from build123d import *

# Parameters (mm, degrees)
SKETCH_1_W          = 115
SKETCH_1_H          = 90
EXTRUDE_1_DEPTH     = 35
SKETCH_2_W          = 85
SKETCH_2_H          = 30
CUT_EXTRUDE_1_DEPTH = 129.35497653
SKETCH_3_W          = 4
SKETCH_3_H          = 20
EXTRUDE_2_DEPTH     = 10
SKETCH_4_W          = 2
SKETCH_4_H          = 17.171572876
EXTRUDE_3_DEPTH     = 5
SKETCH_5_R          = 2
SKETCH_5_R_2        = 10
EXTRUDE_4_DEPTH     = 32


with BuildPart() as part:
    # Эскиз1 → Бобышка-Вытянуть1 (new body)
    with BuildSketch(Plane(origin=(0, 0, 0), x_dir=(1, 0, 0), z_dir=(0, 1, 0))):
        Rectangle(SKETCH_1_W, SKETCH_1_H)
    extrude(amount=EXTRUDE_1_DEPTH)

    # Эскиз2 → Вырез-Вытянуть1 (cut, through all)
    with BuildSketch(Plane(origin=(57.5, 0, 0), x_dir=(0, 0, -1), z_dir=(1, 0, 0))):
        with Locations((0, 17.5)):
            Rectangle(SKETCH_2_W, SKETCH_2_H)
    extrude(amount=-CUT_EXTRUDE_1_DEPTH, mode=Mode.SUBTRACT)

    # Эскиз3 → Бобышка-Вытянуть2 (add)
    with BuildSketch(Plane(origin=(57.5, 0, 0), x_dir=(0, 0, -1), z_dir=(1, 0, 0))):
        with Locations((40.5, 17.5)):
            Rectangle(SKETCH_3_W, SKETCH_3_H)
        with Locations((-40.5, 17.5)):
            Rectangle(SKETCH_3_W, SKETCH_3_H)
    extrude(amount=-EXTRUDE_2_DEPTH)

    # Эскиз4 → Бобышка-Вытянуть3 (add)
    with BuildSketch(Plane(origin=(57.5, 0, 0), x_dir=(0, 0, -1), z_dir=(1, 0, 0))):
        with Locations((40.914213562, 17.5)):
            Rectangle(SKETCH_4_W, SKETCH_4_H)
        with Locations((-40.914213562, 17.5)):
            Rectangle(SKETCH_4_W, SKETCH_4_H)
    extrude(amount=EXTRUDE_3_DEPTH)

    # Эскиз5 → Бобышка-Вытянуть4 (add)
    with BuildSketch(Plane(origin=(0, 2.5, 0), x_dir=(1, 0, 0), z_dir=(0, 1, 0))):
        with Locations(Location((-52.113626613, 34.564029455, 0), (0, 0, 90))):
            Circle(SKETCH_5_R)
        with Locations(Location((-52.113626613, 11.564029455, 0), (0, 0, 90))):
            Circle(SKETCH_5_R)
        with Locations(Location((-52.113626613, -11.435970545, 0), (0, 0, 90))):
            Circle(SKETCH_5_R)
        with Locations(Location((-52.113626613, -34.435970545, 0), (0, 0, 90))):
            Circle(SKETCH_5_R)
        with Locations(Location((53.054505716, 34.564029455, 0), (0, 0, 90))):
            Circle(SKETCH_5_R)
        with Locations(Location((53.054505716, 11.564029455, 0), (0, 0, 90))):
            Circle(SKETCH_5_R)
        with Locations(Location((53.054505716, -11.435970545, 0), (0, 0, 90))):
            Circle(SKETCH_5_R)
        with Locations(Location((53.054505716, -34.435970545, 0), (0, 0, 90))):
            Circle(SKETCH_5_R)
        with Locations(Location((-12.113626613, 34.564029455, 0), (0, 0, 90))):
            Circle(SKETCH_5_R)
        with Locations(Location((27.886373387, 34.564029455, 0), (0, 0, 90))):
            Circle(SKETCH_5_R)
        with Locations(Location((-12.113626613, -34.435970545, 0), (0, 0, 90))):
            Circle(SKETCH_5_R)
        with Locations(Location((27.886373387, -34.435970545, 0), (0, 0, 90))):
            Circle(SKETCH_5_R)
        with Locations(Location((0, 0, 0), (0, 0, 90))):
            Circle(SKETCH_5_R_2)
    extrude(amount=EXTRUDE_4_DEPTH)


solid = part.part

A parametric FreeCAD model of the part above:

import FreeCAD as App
import Part
import Sketcher
from FreeCAD import Vector

doc = App.newDocument("Part")
body = doc.addObject("PartDesign::Body", "Body")

# Sketch on XZ plane
sketch1 = body.newObject("Sketcher::SketchObject", "Sketch")
sketch1.AttachmentSupport = (doc.getObject("XZ_Plane"), [""])
sketch1.MapMode = "FlatFace"
sketch1.addGeometry([
    Part.LineSegment(Vector(-58, -45, 0), Vector(-58, 45, 0)),
    Part.LineSegment(Vector(-58, 45, 0), Vector(58, 45, 0)),
    Part.LineSegment(Vector(58, 45, 0), Vector(58, -45, 0)),
    Part.LineSegment(Vector(58, -45, 0), Vector(-58, -45, 0)),
], False)
sketch1.addConstraint([
    Sketcher.Constraint("Coincident", 0, 2, 1, 1),
    Sketcher.Constraint("Coincident", 1, 2, 2, 1),
    Sketcher.Constraint("Coincident", 2, 2, 3, 1),
    Sketcher.Constraint("Coincident", 3, 2, 0, 1),
    Sketcher.Constraint("Vertical", 0),
    Sketcher.Constraint("Horizontal", 1),
    Sketcher.Constraint("Vertical", 2),
    Sketcher.Constraint("Horizontal", 3),
    Sketcher.Constraint("Symmetric", 0, 2, 2, 2, -1, 1),
    Sketcher.Constraint("DistanceX", 1, 1, 1, 2, 115.0),
    Sketcher.Constraint("DistanceY", 0, 1, 0, 2, 90.0),
])
pad1 = body.newObject("PartDesign::Pad", "Pad")
pad1.Profile = sketch1
pad1.Length = 35
pad1.Reversed = True

# Sketch on YZ plane
sketch2 = body.newObject("Sketcher::SketchObject", "Sketch001")
sketch2.AttachmentSupport = (doc.getObject("YZ_Plane"), [""])
sketch2.MapMode = "FlatFace"
sketch2.AttachmentOffset = App.Placement(Vector(0, 0, 57.5), App.Rotation())
sketch2.addGeometry([
    Part.LineSegment(Vector(32, 42, 0), Vector(2, 42, 0)),
    Part.LineSegment(Vector(2, 42, 0), Vector(2, -42, 0)),
    Part.LineSegment(Vector(2, -42, 0), Vector(32, -42, 0)),
    Part.LineSegment(Vector(32, -42, 0), Vector(32, 42, 0)),
], False)
sketch2.addConstraint([
    Sketcher.Constraint("Coincident", 0, 2, 1, 1),
    Sketcher.Constraint("Coincident", 1, 2, 2, 1),
    Sketcher.Constraint("Coincident", 2, 2, 3, 1),
    Sketcher.Constraint("Coincident", 3, 2, 0, 1),
    Sketcher.Constraint("Horizontal", 0),
    Sketcher.Constraint("Vertical", 1),
    Sketcher.Constraint("Horizontal", 2),
    Sketcher.Constraint("Vertical", 3),
    Sketcher.Constraint("DistanceX", 0, 2, 0, 1, 30.0),
    Sketcher.Constraint("DistanceY", 1, 2, 1, 1, 85.0),
    Sketcher.Constraint("DistanceX", -1, 1, 0, 2, 2.5),
    Sketcher.Constraint("DistanceY", -1, 1, 0, 2, 42.5),
])
pocket1 = body.newObject("PartDesign::Pocket", "Pocket")
pocket1.Profile = sketch2
pocket1.Type = "ThroughAll"

# Sketch on YZ plane
sketch3 = body.newObject("Sketcher::SketchObject", "Sketch002")
sketch3.AttachmentSupport = (doc.getObject("YZ_Plane"), [""])
sketch3.MapMode = "FlatFace"
sketch3.AttachmentOffset = App.Placement(Vector(0, 0, 57.5), App.Rotation())
sketch3.addGeometry([
    Part.LineSegment(Vector(27.5, -38.5, 0), Vector(7.5, -38.5, 0)),  # 0
    Part.LineSegment(Vector(7.5, -38.5, 0), Vector(7.5, -42.5, 0)),  # 1
    Part.LineSegment(Vector(7.5, -42.5, 0), Vector(27.5, -42.5, 0)),  # 2
    Part.LineSegment(Vector(27.5, -42.5, 0), Vector(27.5, -38.5, 0)),  # 3
    Part.LineSegment(Vector(27.5, 42.5, 0), Vector(7.5, 42.5, 0)),  # 4
    Part.LineSegment(Vector(7.5, 42.5, 0), Vector(7.5, 38.5, 0)),  # 5
    Part.LineSegment(Vector(7.5, 38.5, 0), Vector(27.5, 38.5, 0)),  # 6
    Part.LineSegment(Vector(27.5, 38.5, 0), Vector(27.5, 42.5, 0)),  # 7
], False)
sketch3.addConstraint([
    Sketcher.Constraint("Coincident", 0, 2, 1, 1),
    Sketcher.Constraint("Coincident", 1, 2, 2, 1),
    Sketcher.Constraint("Coincident", 2, 2, 3, 1),
    Sketcher.Constraint("Coincident", 3, 2, 0, 1),
    Sketcher.Constraint("Coincident", 4, 2, 5, 1),
    Sketcher.Constraint("Coincident", 5, 2, 6, 1),
    Sketcher.Constraint("Coincident", 6, 2, 7, 1),
    Sketcher.Constraint("Coincident", 7, 2, 4, 1),
    Sketcher.Constraint("Horizontal", 0),
    Sketcher.Constraint("Vertical", 1),
    Sketcher.Constraint("Horizontal", 2),
    Sketcher.Constraint("Vertical", 3),
    Sketcher.Constraint("Horizontal", 4),
    Sketcher.Constraint("Vertical", 5),
    Sketcher.Constraint("Horizontal", 6),
    Sketcher.Constraint("Vertical", 7),
    Sketcher.Constraint("Symmetric", 1, 2, 4, 2, -1),
    Sketcher.Constraint("Symmetric", 3, 2, 6, 2, -1),
    Sketcher.Constraint("DistanceX", 0, 2, 0, 1, 20.0),
    Sketcher.Constraint("DistanceY", 1, 2, 1, 1, 4.0),
    Sketcher.Constraint("DistanceY", 0, 2, 4, 2, 81.0),
    Sketcher.Constraint("DistanceX", -1, 1, 0, 2, 7.5),
])
pad2 = body.newObject("PartDesign::Pad", "Pad001")
pad2.Profile = sketch3
pad2.Length = 10
pad2.Reversed = True

# Sketch on YZ plane
sketch4 = body.newObject("Sketcher::SketchObject", "Sketch003")
sketch4.AttachmentSupport = (doc.getObject("YZ_Plane"), [""])
sketch4.MapMode = "FlatFace"
sketch4.AttachmentOffset = App.Placement(Vector(0, 0, 57.5), App.Rotation())
sketch4.addGeometry([
    Part.LineSegment(Vector(26.1, -39.9, 0), Vector(8.9, -39.9, 0)),  # 0
    Part.LineSegment(Vector(8.9, -39.9, 0), Vector(8.9, -41.9, 0)),  # 1
    Part.LineSegment(Vector(8.9, -41.9, 0), Vector(26.1, -41.9, 0)),  # 2
    Part.LineSegment(Vector(26.1, -41.9, 0), Vector(26.1, -39.9, 0)),  # 3
    Part.LineSegment(Vector(26.1, 41.9, 0), Vector(8.9, 41.9, 0)),  # 4
    Part.LineSegment(Vector(8.9, 41.9, 0), Vector(8.9, 39.9, 0)),  # 5
    Part.LineSegment(Vector(8.9, 39.9, 0), Vector(26.1, 39.9, 0)),  # 6
    Part.LineSegment(Vector(26.1, 39.9, 0), Vector(26.1, 41.9, 0)),  # 7
], False)
sketch4.addConstraint([
    Sketcher.Constraint("Coincident", 0, 2, 1, 1),
    Sketcher.Constraint("Coincident", 1, 2, 2, 1),
    Sketcher.Constraint("Coincident", 2, 2, 3, 1),
    Sketcher.Constraint("Coincident", 3, 2, 0, 1),
    Sketcher.Constraint("Coincident", 4, 2, 5, 1),
    Sketcher.Constraint("Coincident", 5, 2, 6, 1),
    Sketcher.Constraint("Coincident", 6, 2, 7, 1),
    Sketcher.Constraint("Coincident", 7, 2, 4, 1),
    Sketcher.Constraint("Horizontal", 0),
    Sketcher.Constraint("Vertical", 1),
    Sketcher.Constraint("Horizontal", 2),
    Sketcher.Constraint("Vertical", 3),
    Sketcher.Constraint("Horizontal", 4),
    Sketcher.Constraint("Vertical", 5),
    Sketcher.Constraint("Horizontal", 6),
    Sketcher.Constraint("Vertical", 7),
    Sketcher.Constraint("Symmetric", 1, 2, 4, 2, -1),
    Sketcher.Constraint("Symmetric", 3, 2, 6, 2, -1),
    Sketcher.Constraint("DistanceY", 1, 2, 1, 1, 2.0),
    Sketcher.Constraint("DistanceX", 0, 2, 0, 1, 17.171573),
    Sketcher.Constraint("DistanceX", -1, 1, 0, 2, 8.914214),
    Sketcher.Constraint("DistanceY", 0, 2, -1, 1, 39.914214),
])
pad3 = body.newObject("PartDesign::Pad", "Pad002")
pad3.Profile = sketch4
pad3.Length = 5

# Sketch on XZ plane
sketch5 = body.newObject("Sketcher::SketchObject", "Sketch004")
sketch5.AttachmentSupport = (doc.getObject("XZ_Plane"), [""])
sketch5.MapMode = "FlatFace"
sketch5.AttachmentOffset = App.Placement(Vector(0, 0, -2.5), App.Rotation())
sketch5.addGeometry([
    Part.Circle(Vector(-52.1, -34.6, 0), Vector(0, 0, 1), 2),  # 0
    Part.Circle(Vector(-52.1, -11.6, 0), Vector(0, 0, 1), 2),  # 1
    Part.Circle(Vector(-52.1, 11.4, 0), Vector(0, 0, 1), 2),  # 2
    Part.Circle(Vector(-52.1, 34.4, 0), Vector(0, 0, 1), 2),  # 3
    Part.Circle(Vector(53.1, -34.6, 0), Vector(0, 0, 1), 2),  # 4
    Part.Circle(Vector(53.1, -11.6, 0), Vector(0, 0, 1), 2),  # 5
    Part.Circle(Vector(53.1, 11.4, 0), Vector(0, 0, 1), 2),  # 6
    Part.Circle(Vector(53.1, 34.4, 0), Vector(0, 0, 1), 2),  # 7
    Part.Circle(Vector(-12.1, -34.6, 0), Vector(0, 0, 1), 2),  # 8
    Part.Circle(Vector(27.9, -34.6, 0), Vector(0, 0, 1), 2),  # 9
    Part.Circle(Vector(-12.1, 34.4, 0), Vector(0, 0, 1), 2),  # 10
    Part.Circle(Vector(27.9, 34.4, 0), Vector(0, 0, 1), 2),  # 11
    Part.Circle(Vector(0, 0, 0), Vector(0, 0, 1), 10),  # 12
], False)
sketch5.addConstraint([
    Sketcher.Constraint("Coincident", 12, 3, -1, 1),
    Sketcher.Constraint("Equal", 0, 1),
    Sketcher.Constraint("Equal", 1, 2),
    Sketcher.Constraint("Equal", 2, 3),
    Sketcher.Constraint("Equal", 3, 4),
    Sketcher.Constraint("Equal", 4, 5),
    Sketcher.Constraint("Equal", 5, 6),
    Sketcher.Constraint("Equal", 6, 7),
    Sketcher.Constraint("Equal", 7, 8),
    Sketcher.Constraint("Equal", 8, 9),
    Sketcher.Constraint("Equal", 9, 10),
    Sketcher.Constraint("Equal", 10, 11),
    Sketcher.Constraint("Horizontal", 0, 3, 4, 3),
    Sketcher.Constraint("Horizontal", 1, 3, 5, 3),
    Sketcher.Constraint("Horizontal", 2, 3, 6, 3),
    Sketcher.Constraint("Horizontal", 3, 3, 7, 3),
    Sketcher.Constraint("Horizontal", 4, 3, 8, 3),
    Sketcher.Constraint("Horizontal", 8, 3, 9, 3),
    Sketcher.Constraint("Horizontal", 7, 3, 10, 3),
    Sketcher.Constraint("Horizontal", 10, 3, 11, 3),
    Sketcher.Constraint("Vertical", 0, 3, 1, 3),
    Sketcher.Constraint("Vertical", 1, 3, 2, 3),
    Sketcher.Constraint("Vertical", 2, 3, 3, 3),
    Sketcher.Constraint("Vertical", 4, 3, 5, 3),
    Sketcher.Constraint("Vertical", 5, 3, 6, 3),
    Sketcher.Constraint("Vertical", 6, 3, 7, 3),
    Sketcher.Constraint("Vertical", 8, 3, 10, 3),
    Sketcher.Constraint("Vertical", 9, 3, 11, 3),
    Sketcher.Constraint("Diameter", 0, 4.0),
    Sketcher.Constraint("Diameter", 12, 20.0),
    Sketcher.Constraint("DistanceY", 0, 3, 1, 3, 23.0),
    Sketcher.Constraint("DistanceY", 1, 3, 2, 3, 23.0),
    Sketcher.Constraint("DistanceY", 2, 3, 3, 3, 23.0),
    Sketcher.Constraint("DistanceX", 0, 3, 8, 3, 40.0),
    Sketcher.Constraint("DistanceX", 8, 3, 9, 3, 40.0),
    Sketcher.Constraint("DistanceY", 0, 3, -1, 1, 34.564029),
    Sketcher.Constraint("DistanceX", 0, 3, -1, 1, 52.113627),
    Sketcher.Constraint("DistanceX", -1, 1, 4, 3, 53.054506),
])
pad4 = body.newObject("PartDesign::Pad", "Pad003")
pad4.Profile = sketch5
pad4.Length = 32
pad4.Reversed = True

doc.recompute()
